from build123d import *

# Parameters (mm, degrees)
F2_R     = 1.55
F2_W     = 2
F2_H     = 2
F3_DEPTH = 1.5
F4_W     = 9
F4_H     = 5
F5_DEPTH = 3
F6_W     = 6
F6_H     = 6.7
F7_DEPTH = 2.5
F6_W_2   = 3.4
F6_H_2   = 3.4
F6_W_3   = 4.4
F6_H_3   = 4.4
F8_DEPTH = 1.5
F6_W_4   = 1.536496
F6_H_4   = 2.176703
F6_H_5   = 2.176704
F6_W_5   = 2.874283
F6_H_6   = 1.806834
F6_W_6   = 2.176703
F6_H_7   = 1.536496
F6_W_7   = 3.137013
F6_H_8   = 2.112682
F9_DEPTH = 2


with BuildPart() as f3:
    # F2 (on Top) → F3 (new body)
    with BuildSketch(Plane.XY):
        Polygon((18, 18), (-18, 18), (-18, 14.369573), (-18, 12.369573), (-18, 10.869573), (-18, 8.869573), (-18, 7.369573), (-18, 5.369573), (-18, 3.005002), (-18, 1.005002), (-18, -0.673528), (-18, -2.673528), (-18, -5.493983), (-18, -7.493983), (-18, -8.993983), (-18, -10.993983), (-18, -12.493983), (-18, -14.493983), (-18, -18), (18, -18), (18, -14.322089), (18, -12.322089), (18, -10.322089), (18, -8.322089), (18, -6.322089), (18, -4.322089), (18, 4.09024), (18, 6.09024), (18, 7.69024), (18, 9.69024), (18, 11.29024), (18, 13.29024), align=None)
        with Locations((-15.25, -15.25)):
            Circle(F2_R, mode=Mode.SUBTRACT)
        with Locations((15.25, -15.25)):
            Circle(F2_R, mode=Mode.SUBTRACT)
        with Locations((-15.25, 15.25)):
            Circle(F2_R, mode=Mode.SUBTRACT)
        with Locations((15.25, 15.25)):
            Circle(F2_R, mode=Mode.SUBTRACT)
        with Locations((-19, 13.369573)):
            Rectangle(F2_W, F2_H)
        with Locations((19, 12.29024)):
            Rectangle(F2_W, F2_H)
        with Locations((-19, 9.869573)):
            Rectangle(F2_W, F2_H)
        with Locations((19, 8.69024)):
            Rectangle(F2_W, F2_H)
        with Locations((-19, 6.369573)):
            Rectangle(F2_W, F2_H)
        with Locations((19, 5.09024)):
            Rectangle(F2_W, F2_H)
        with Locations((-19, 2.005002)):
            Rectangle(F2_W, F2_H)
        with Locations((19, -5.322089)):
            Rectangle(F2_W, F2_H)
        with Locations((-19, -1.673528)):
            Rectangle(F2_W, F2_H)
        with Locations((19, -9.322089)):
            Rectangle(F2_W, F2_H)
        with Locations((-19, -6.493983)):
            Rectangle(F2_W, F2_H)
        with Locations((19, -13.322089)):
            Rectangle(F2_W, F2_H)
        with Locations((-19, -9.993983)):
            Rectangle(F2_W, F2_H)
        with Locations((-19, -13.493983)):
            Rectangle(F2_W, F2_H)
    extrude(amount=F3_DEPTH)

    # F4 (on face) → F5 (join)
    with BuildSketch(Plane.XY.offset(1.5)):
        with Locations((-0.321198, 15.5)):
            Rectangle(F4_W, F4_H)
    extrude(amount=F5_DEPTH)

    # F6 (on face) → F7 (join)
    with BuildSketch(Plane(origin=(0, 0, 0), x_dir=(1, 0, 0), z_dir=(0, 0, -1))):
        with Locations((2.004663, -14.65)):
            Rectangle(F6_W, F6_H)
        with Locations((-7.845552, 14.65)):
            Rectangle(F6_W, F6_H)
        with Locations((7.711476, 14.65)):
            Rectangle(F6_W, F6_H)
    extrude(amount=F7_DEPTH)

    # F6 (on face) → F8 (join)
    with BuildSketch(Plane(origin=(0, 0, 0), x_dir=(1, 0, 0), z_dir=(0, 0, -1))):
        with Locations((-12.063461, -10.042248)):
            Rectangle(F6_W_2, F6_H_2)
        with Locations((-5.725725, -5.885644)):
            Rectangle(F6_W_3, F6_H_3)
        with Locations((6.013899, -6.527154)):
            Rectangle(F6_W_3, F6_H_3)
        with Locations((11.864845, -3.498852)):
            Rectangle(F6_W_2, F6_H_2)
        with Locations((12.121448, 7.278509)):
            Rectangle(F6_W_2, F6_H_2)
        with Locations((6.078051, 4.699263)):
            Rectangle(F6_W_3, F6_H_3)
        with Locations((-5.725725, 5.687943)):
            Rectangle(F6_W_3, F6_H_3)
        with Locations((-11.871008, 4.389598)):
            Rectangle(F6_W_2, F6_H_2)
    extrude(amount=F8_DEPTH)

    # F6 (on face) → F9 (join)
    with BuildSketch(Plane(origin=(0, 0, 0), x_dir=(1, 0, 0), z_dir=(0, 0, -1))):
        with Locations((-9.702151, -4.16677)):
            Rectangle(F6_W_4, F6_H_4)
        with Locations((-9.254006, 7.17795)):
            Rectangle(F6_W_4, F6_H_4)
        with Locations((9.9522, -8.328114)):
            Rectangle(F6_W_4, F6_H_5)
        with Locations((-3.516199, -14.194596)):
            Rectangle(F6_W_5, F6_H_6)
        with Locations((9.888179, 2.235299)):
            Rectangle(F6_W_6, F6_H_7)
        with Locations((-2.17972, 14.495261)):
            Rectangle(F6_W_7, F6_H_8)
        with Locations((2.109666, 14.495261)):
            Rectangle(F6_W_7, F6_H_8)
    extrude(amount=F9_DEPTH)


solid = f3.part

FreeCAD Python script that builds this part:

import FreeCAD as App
import Part
import Sketcher


def add_polygon(sketch, points):
    """Adds a closed chain of lines whose ends are joined by coincident constraints."""
    first, n = sketch.GeometryCount, len(points)
    for a, b in zip(points, points[1:] + points[:1]):
        sketch.addGeometry(Part.LineSegment(App.Vector(*a, 0), App.Vector(*b, 0)), False)
    for i in range(n):
        sketch.addConstraint(Sketcher.Constraint("Coincident", first + i, 2, first + (i + 1) % n, 1))

doc = App.newDocument("Part")
params = doc.addObject("Spreadsheet::Sheet", "Params")
for row, (alias, value) in enumerate([
    ("sketch1_diameter", "3.1 mm"),
    ("sketch1_width", "36 mm"),
    ("sketch1_width2", "2 mm"),
    ("sketch1_height", "1.5 mm"),
    ("sketch1_height2", "1.6 mm"),
    ("pad1_length", "1.5 mm"),
    ("sketch2_width", "9 mm"),
    ("sketch2_height", "5 mm"),
    ("pad2_length", "3 mm"),
    ("sketch3_width", "6 mm"),
    ("sketch3_height", "6.7 mm"),
    ("pad3_length", "2.5 mm"),
    ("sketch4_width", "3.4 mm"),
    ("sketch4_width2", "4.4 mm"),
    ("pad4_length", "1.5 mm"),
    ("pad5_length", "2 mm"),
], start=1):
    params.set(f"A{row}", alias)
    params.set(f"B{row}", "=" + value)
    params.setAlias(f"B{row}", alias)

body = doc.addObject("PartDesign::Body", "Body")

sketch1 = doc.addObject("Sketcher::SketchObject", "Sketch")
body.addObject(sketch1)
sketch1.AttachmentSupport = (doc.XY_Plane, [""])
sketch1.MapMode = "FlatFace"
add_polygon(sketch1, [(18, 18), (-18, 18), (-18, 14.4), (-20, 14.4), (-20, 12.4), (-18, 12.4), (-18, 10.9), (-20, 10.9), (-20, 8.9), (-18, 8.9), (-18, 7.4), (-20, 7.4), (-20, 5.4), (-18, 5.4), (-18, 3), (-20, 3), (-20, 1), (-18, 1), (-18, -0.7), (-20, -0.7), (-20, -2.7), (-18, -2.7), (-18, -5.5), (-20, -5.5), (-20, -7.5), (-18, -7.5), (-18, -9), (-20, -9), (-20, -11), (-18, -11), (-18, -12.5), (-20, -12.5), (-20, -14.5), (-18, -14.5), (-18, -18), (18, -18), (18, -14.3), (20, -14.3), (20, -12.3), (18, -12.3), (18, -10.3), (20, -10.3), (20, -8.3), (18, -8.3), (18, -6.3), (20, -6.3), (20, -4.3), (18, -4.3), (18, 4.1), (20, 4.1), (20, 6.1), (18, 6.1), (18, 7.7), (20, 7.7), (20, 9.7), (18, 9.7), (18, 11.3), (20, 11.3), (20, 13.3), (18, 13.3)])
sketch1.addGeometry(Part.Circle(App.Vector(-15.2, -15.2, 0), App.Vector(0, 0, 1), 1.6), False)
sketch1.addGeometry(Part.Circle(App.Vector(15.2, -15.2, 0), App.Vector(0, 0, 1), 1.6), False)
sketch1.addGeometry(Part.Circle(App.Vector(-15.2, 15.2, 0), App.Vector(0, 0, 1), 1.6), False)
sketch1.addGeometry(Part.Circle(App.Vector(15.2, 15.2, 0), App.Vector(0, 0, 1), 1.6), False)
sketch1.addConstraint([
    Sketcher.Constraint("Horizontal", 0),
    Sketcher.Constraint("Vertical", 1),
    Sketcher.Constraint("Horizontal", 2),
    Sketcher.Constraint("Vertical", 3),
    Sketcher.Constraint("Horizontal", 4),
    Sketcher.Constraint("Vertical", 5),
    Sketcher.Constraint("Horizontal", 6),
    Sketcher.Constraint("Vertical", 7),
    Sketcher.Constraint("Horizontal", 8),
    Sketcher.Constraint("Vertical", 9),
    Sketcher.Constraint("Horizontal", 10),
    Sketcher.Constraint("Vertical", 11),
    Sketcher.Constraint("Horizontal", 12),
    Sketcher.Constraint("Vertical", 13),
    Sketcher.Constraint("Horizontal", 14),
    Sketcher.Constraint("Vertical", 15),
    Sketcher.Constraint("Horizontal", 16),
    Sketcher.Constraint("Vertical", 17),
    Sketcher.Constraint("Horizontal", 18),
    Sketcher.Constraint("Vertical", 19),
    Sketcher.Constraint("Horizontal", 20),
    Sketcher.Constraint("Vertical", 21),
    Sketcher.Constraint("Horizontal", 22),
    Sketcher.Constraint("Vertical", 23),
    Sketcher.Constraint("Horizontal", 24),
    Sketcher.Constraint("Vertical", 25),
    Sketcher.Constraint("Horizontal", 26),
    Sketcher.Constraint("Vertical", 27),
    Sketcher.Constraint("Horizontal", 28),
    Sketcher.Constraint("Vertical", 29),
    Sketcher.Constraint("Horizontal", 30),
    Sketcher.Constraint("Vertical", 31),
    Sketcher.Constraint("Horizontal", 32),
    Sketcher.Constraint("Vertical", 33),
    Sketcher.Constraint("Horizontal", 34),
    Sketcher.Constraint("Vertical", 35),
    Sketcher.Constraint("Horizontal", 36),
    Sketcher.Constraint("Vertical", 37),
    Sketcher.Constraint("Horizontal", 38),
    Sketcher.Constraint("Vertical", 39),
    Sketcher.Constraint("Horizontal", 40),
    Sketcher.Constraint("Vertical", 41),
    Sketcher.Constraint("Horizontal", 42),
    Sketcher.Constraint("Vertical", 43),
    Sketcher.Constraint("Horizontal", 44),
    Sketcher.Constraint("Vertical", 45),
    Sketcher.Constraint("Horizontal", 46),
    Sketcher.Constraint("Vertical", 47),
    Sketcher.Constraint("Horizontal", 48),
    Sketcher.Constraint("Vertical", 49),
    Sketcher.Constraint("Horizontal", 50),
    Sketcher.Constraint("Vertical", 51),
    Sketcher.Constraint("Horizontal", 52),
    Sketcher.Constraint("Vertical", 53),
    Sketcher.Constraint("Horizontal", 54),
    Sketcher.Constraint("Vertical", 55),
    Sketcher.Constraint("Horizontal", 56),
    Sketcher.Constraint("Vertical", 57),
    Sketcher.Constraint("Horizontal", 58),
    Sketcher.Constraint("Vertical", 59),
    Sketcher.Constraint("Equal", 60, 61),
    Sketcher.Constraint("Equal", 61, 62),
    Sketcher.Constraint("Equal", 62, 63),
    Sketcher.Constraint("Symmetric", 61, 3, 62, 3, -1, 1),
    Sketcher.Constraint("Symmetric", 60, 3, 63, 3, -1, 1),
    Sketcher.Constraint("Symmetric", 0, 2, 34, 2, -1, 1),
    Sketcher.Constraint("Symmetric", 60, 3, 61, 3, -2),
    Sketcher.Constraint("Vertical", 1, 2, 4, 2),
    Sketcher.Constraint("Vertical", 3, 2, 6, 2),
    Sketcher.Constraint("Vertical", 5, 2, 8, 2),
    Sketcher.Constraint("Vertical", 7, 2, 10, 2),
    Sketcher.Constraint("Vertical", 9, 2, 12, 2),
    Sketcher.Constraint("Vertical", 11, 2, 14, 2),
    Sketcher.Constraint("Vertical", 13, 2, 16, 2),
    Sketcher.Constraint("Vertical", 15, 2, 18, 2),
    Sketcher.Constraint("Vertical", 17, 2, 20, 2),
    Sketcher.Constraint("Vertical", 19, 2, 22, 2),
    Sketcher.Constraint("Vertical", 21, 2, 24, 2),
    Sketcher.Constraint("Vertical", 23, 2, 26, 2),
    Sketcher.Constraint("Vertical", 25, 2, 28, 2),
    Sketcher.Constraint("Vertical", 27, 2, 30, 2),
    Sketcher.Constraint("Vertical", 29, 2, 32, 2),
    Sketcher.Constraint("Vertical", 35, 2, 38, 2),
    Sketcher.Constraint("Vertical", 37, 2, 40, 2),
    Sketcher.Constraint("Vertical", 39, 2, 42, 2),
    Sketcher.Constraint("Vertical", 41, 2, 44, 2),
    Sketcher.Constraint("Vertical", 43, 2, 46, 2),
    Sketcher.Constraint("Vertical", 45, 2, 48, 2),
    Sketcher.Constraint("Vertical", 47, 2, 50, 2),
    Sketcher.Constraint("Vertical", 49, 2, 52, 2),
    Sketcher.Constraint("Vertical", 51, 2, 54, 2),
    Sketcher.Constraint("Vertical", 53, 2, 56, 2),
    Sketcher.Constraint("Vertical", 55, 2, 58, 2),
    Sketcher.Constraint("Equal", 32, 36),
    Sketcher.Constraint("Equal", 58, 3),
    Sketcher.Constraint("Equal", 3, 7),
    Sketcher.Constraint("Equal", 5, 9),
    Sketcher.Constraint("Equal", 7, 11),
    Sketcher.Constraint("Equal", 11, 15),
    Sketcher.Constraint("Equal", 15, 19),
    Sketcher.Constraint("Equal", 19, 23),
    Sketcher.Constraint("Equal", 9, 25),
    Sketcher.Constraint("Equal", 23, 27),
    Sketcher.Constraint("Equal", 25, 29),
    Sketcher.Constraint("Equal", 27, 31),
    Sketcher.Constraint("Equal", 31, 37),
    Sketcher.Constraint("Equal", 37, 39),
    Sketcher.Constraint("Equal", 39, 41),
    Sketcher.Constraint("Equal", 41, 43),
    Sketcher.Constraint("Equal", 43, 45),
    Sketcher.Constraint("Equal", 45, 49),
    Sketcher.Constraint("Equal", 49, 53),
    Sketcher.Constraint("Equal", 51, 55),
    Sketcher.Constraint("Equal", 53, 57),
    Sketcher.Constraint("Diameter", 60, 3.1),
    Sketcher.Constraint("DistanceX", 0, 2, 0, 1, 36.0),
    Sketcher.Constraint("DistanceX", 2, 2, 2, 1, 2.0),
    Sketcher.Constraint("DistanceY", 5, 2, 5, 1, 1.5),
    Sketcher.Constraint("DistanceY", 51, 1, 51, 2, 1.6),
    Sketcher.Constraint("DistanceY", -1, 1, 0, 2, 18.0),
    Sketcher.Constraint("DistanceX", 60, 3, -1, 1, 15.25),
    Sketcher.Constraint("DistanceY", 60, 3, -1, 1, 15.25),
    Sketcher.Constraint("DistanceY", 13, 2, 13, 1, 2.364571),
    Sketcher.Constraint("DistanceY", 17, 2, 17, 1, 1.67853),
    Sketcher.Constraint("DistanceY", 35, 1, 35, 2, 3.677911),
    Sketcher.Constraint("DistanceY", 47, 1, 47, 2, 8.412329),
    Sketcher.Constraint("DistanceY", 1, 2, 1, 1, 3.630427),
    Sketcher.Constraint("DistanceY", 21, 2, 21, 1, 2.820455),
])
sketch1.setExpression("Constraints[174]", "Params.sketch1_diameter")
sketch1.setExpression("Constraints[175]", "Params.sketch1_width")
sketch1.setExpression("Constraints[176]", "Params.sketch1_width2")
sketch1.setExpression("Constraints[177]", "Params.sketch1_height")
sketch1.setExpression("Constraints[178]", "Params.sketch1_height2")
pad1 = doc.addObject("PartDesign::Pad", "Pad")
body.addObject(pad1)
pad1.Profile = sketch1
pad1.setExpression("Length", "Params.pad1_length")

sketch2 = doc.addObject("Sketcher::SketchObject", "Sketch001")
body.addObject(sketch2)
sketch2.AttachmentSupport = (doc.XY_Plane, [""])
sketch2.MapMode = "FlatFace"
sketch2.AttachmentOffset = App.Placement(App.Vector(0, 0, 1.5), App.Rotation())
add_polygon(sketch2, [(-5, 18), (-5, 13), (4, 13), (4, 18)])
sketch2.addConstraint([
    Sketcher.Constraint("Vertical", 0),
    Sketcher.Constraint("Horizontal", 1),
    Sketcher.Constraint("Vertical", 2),
    Sketcher.Constraint("Horizontal", 3),
    Sketcher.Constraint("DistanceX", 1, 1, 1, 2, 9.0),
    Sketcher.Constraint("DistanceY", 0, 2, 0, 1, 5.0),
    Sketcher.Constraint("DistanceY", -1, 1, 0, 2, 13.0),
    Sketcher.Constraint("DistanceX", 0, 2, -1, 1, 4.821198),
])
sketch2.setExpression("Constraints[8]", "Params.sketch2_width")
sketch2.setExpression("Constraints[9]", "Params.sketch2_height")
pad2 = doc.addObject("PartDesign::Pad", "Pad001")
body.addObject(pad2)
pad2.Profile = sketch2
pad2.setExpression("Length", "Params.pad2_length")

sketch3 = doc.addObject("Sketcher::SketchObject", "Sketch002")
body.addObject(sketch3)
sketch3.AttachmentSupport = (doc.XY_Plane, [""])
sketch3.MapMode = "FlatFace"
add_polygon(sketch3, [(-1, 11), (-1, 18), (5, 18), (5, 11)])
add_polygon(sketch3, [(-11, -18), (-11, -11), (-5, -11), (-5, -18)])
add_polygon(sketch3, [(5, -18), (5, -11), (11, -11), (11, -18)])
sketch3.addConstraint([
    Sketcher.Constraint("Vertical", 0),
    Sketcher.Constraint("Horizontal", 1),
    Sketcher.Constraint("Vertical", 2),
    Sketcher.Constraint("Horizontal", 3),
    Sketcher.Constraint("Vertical", 4),
    Sketcher.Constraint("Horizontal", 5),
    Sketcher.Constraint("Vertical", 6),
    Sketcher.Constraint("Horizontal", 7),
    Sketcher.Constraint("Vertical", 8),
    Sketcher.Constraint("Horizontal", 9),
    Sketcher.Constraint("Vertical", 10),
    Sketcher.Constraint("Horizontal", 11),
    Sketcher.Constraint("Horizontal", 5, 2, 8, 2),
    Sketcher.Constraint("Horizontal", 7, 2, 10, 2),
    Sketcher.Constraint("Equal", 3, 5),
    Sketcher.Constraint("Equal", 7, 9),
    Sketcher.Constraint("Equal", 2, 4),
    Sketcher.Constraint("DistanceX", 1, 1, 1, 2, 6.0),
    Sketcher.Constraint("DistanceY", 0, 1, 0, 2, 6.7),
    Sketcher.Constraint("DistanceY", -1, 1, 0, 2, 18.0),
    Sketcher.Constraint("DistanceY", 6, 2, -1, 1, 18.0),
    Sketcher.Constraint("DistanceX", 5, 2, -1, 1, 4.845552),
    Sketcher.Constraint("DistanceX", 0, 2, -1, 1, 0.995337),
    Sketcher.Constraint("DistanceX", -1, 1, 8, 2, 4.711476),
])
sketch3.setExpression("Constraints[29]", "Params.sketch3_width")
sketch3.setExpression("Constraints[30]", "Params.sketch3_height")
pad3 = doc.addObject("PartDesign::Pad", "Pad002")
body.addObject(pad3)
pad3.Profile = sketch3
pad3.setExpression("Length", "Params.pad3_length")
pad3.Reversed = True

sketch4 = doc.addObject("Sketcher::SketchObject", "Sketch003")
body.addObject(sketch4)
sketch4.AttachmentSupport = (doc.XY_Plane, [""])
sketch4.MapMode = "FlatFace"
add_polygon(sketch4, [(-13.8, 8.3), (-13.8, 11.7), (-10.4, 11.7), (-10.4, 8.3)])
add_polygon(sketch4, [(-7.9, 3.7), (-7.9, 8.1), (-3.5, 8.1), (-3.5, 3.7)])
add_polygon(sketch4, [(3.8, 4.3), (3.8, 8.7), (8.2, 8.7), (8.2, 4.3)])
add_polygon(sketch4, [(10.2, 1.8), (10.2, 5.2), (13.6, 5.2), (13.6, 1.8)])
add_polygon(sketch4, [(10.4, -9), (10.4, -5.6), (13.8, -5.6), (13.8, -9)])
add_polygon(sketch4, [(3.9, -6.9), (3.9, -2.5), (8.3, -2.5), (8.3, -6.9)])
add_polygon(sketch4, [(-7.9, -7.9), (-7.9, -3.5), (-3.5, -3.5), (-3.5, -7.9)])
add_polygon(sketch4, [(-13.6, -6.1), (-13.6, -2.7), (-10.2, -2.7), (-10.2, -6.1)])
sketch4.addConstraint([
    Sketcher.Constraint("Vertical", 0),
    Sketcher.Constraint("Horizontal", 1),
    Sketcher.Constraint("Vertical", 2),
    Sketcher.Constraint("Horizontal", 3),
    Sketcher.Constraint("Vertical", 4),
    Sketcher.Constraint("Horizontal", 5),
    Sketcher.Constraint("Vertical", 6),
    Sketcher.Constraint("Horizontal", 7),
    Sketcher.Constraint("Vertical", 8),
    Sketcher.Constraint("Horizontal", 9),
    Sketcher.Constraint("Vertical", 10),
    Sketcher.Constraint("Horizontal", 11),
    Sketcher.Constraint("Vertical", 12),
    Sketcher.Constraint("Horizontal", 13),
    Sketcher.Constraint("Vertical", 14),
    Sketcher.Constraint("Horizontal", 15),
    Sketcher.Constraint("Vertical", 16),
    Sketcher.Constraint("Horizontal", 17),
    Sketcher.Constraint("Vertical", 18),
    Sketcher.Constraint("Horizontal", 19),
    Sketcher.Constraint("Vertical", 20),
    Sketcher.Constraint("Horizontal", 21),
    Sketcher.Constraint("Vertical", 22),
    Sketcher.Constraint("Horizontal", 23),
    Sketcher.Constraint("Vertical", 24),
    Sketcher.Constraint("Horizontal", 25),
    Sketcher.Constraint("Vertical", 26),
    Sketcher.Constraint("Horizontal", 27),
    Sketcher.Constraint("Vertical", 28),
    Sketcher.Constraint("Horizontal", 29),
    Sketcher.Constraint("Vertical", 30),
    Sketcher.Constraint("Horizontal", 31),
    Sketcher.Constraint("Vertical", 7, 2, 24, 2),
    Sketcher.Constraint("Vertical", 6, 2, 25, 2),
    Sketcher.Constraint("Equal", 7, 9),
    Sketcher.Constraint("Equal", 3, 13),
    Sketcher.Constraint("Equal", 15, 17),
    Sketcher.Constraint("Equal", 11, 21),
    Sketcher.Constraint("Equal", 19, 29),
    Sketcher.Constraint("Equal", 31, 0),
    Sketcher.Constraint("Equal", 27, 4),
    Sketcher.Constraint("Equal", 6, 8),
    Sketcher.Constraint("Equal", 2, 12),
    Sketcher.Constraint("Equal", 14, 16),
    Sketcher.Constraint("Equal", 10, 20),
    Sketcher.Constraint("Equal", 22, 24),
    Sketcher.Constraint("Equal", 18, 28),
    Sketcher.Constraint("DistanceX", 1, 1, 1, 2, 3.4),
    Sketcher.Constraint("DistanceX", 5, 1, 5, 2, 4.4),
    Sketcher.Constraint("DistanceX", -1, 1, 8, 2, 3.813899),
    Sketcher.Constraint("DistanceY", 28, 2, -1, 1, 2.689598),
    Sketcher.Constraint("DistanceY", 14, 2, 10, 2, 2.528302),
    Sketcher.Constraint("DistanceX", 0, 2, -1, 1, 13.763461),
    Sketcher.Constraint("DistanceY", -1, 1, 12, 2, 5.198852),
    Sketcher.Constraint("DistanceY", 16, 2, -1, 1, 5.578509),
    Sketcher.Constraint("DistanceX", -1, 1, 20, 2, 3.878051),
    Sketcher.Constraint("DistanceX", 28, 2, -1, 1, 13.571008),
    Sketcher.Constraint("DistanceY", 5, 2, 8, 2, 0.64151),
    Sketcher.Constraint("DistanceX", 6, 2, 12, 2, 13.69057),
    Sketcher.Constraint("DistanceX", 10, 2, 16, 2, 2.207549),
    Sketcher.Constraint("DistanceY", 24, 2, 20, 2, 0.98868),
    Sketcher.Constraint("DistanceY", 24, 2, 2, 2, 11.830191),
    Sketcher.Constraint("DistanceY", -1, 1, 0, 2, 11.742248),
    Sketcher.Constraint("DistanceX", 4, 2, -1, 1, 7.925725),
])
sketch4.setExpression("Constraints[79]", "Params.sketch4_width")
sketch4.setExpression("Constraints[80]", "Params.sketch4_width2")
pad4 = doc.addObject("PartDesign::Pad", "Pad003")
body.addObject(pad4)
pad4.Profile = sketch4
pad4.setExpression("Length", "Params.pad4_length")
pad4.Reversed = True

sketch5 = doc.addObject("Sketcher::SketchObject", "Sketch004")
body.addObject(sketch5)
sketch5.AttachmentSupport = (doc.XY_Plane, [""])
sketch5.MapMode = "FlatFace"
add_polygon(sketch5, [(-10.5, 3.1), (-10.5, 5.3), (-8.9, 5.3), (-8.9, 3.1)])
add_polygon(sketch5, [(-10, -8.3), (-10, -6.1), (-8.5, -6.1), (-8.5, -8.3)])
add_polygon(sketch5, [(9.2, 7.2), (9.2, 9.4), (10.7, 9.4), (10.7, 7.2)])
add_polygon(sketch5, [(-5, 13.3), (-5, 15.1), (-2.1, 15.1), (-2.1, 13.3)])
add_polygon(sketch5, [(8.8, -3), (8.8, -1.5), (11, -1.5), (11, -3)])
add_polygon(sketch5, [(-3.7, -15.6), (-3.7, -13.4), (-0.6, -13.4), (-0.6, -15.6)])
add_polygon(sketch5, [(0.5, -15.6), (0.5, -13.4), (3.7, -13.4), (3.7, -15.6)])
sketch5.addConstraint([
    Sketcher.Constraint("Vertical", 0),
    Sketcher.Constraint("Horizontal", 1),
    Sketcher.Constraint("Vertical", 2),
    Sketcher.Constraint("Horizontal", 3),
    Sketcher.Constraint("Vertical", 4),
    Sketcher.Constraint("Horizontal", 5),
    Sketcher.Constraint("Vertical", 6),
    Sketcher.Constraint("Horizontal", 7),
    Sketcher.Constraint("Vertical", 8),
    Sketcher.Constraint("Horizontal", 9),
    Sketcher.Constraint("Vertical", 10),
    Sketcher.Constraint("Horizontal", 11),
    Sketcher.Constraint("Vertical", 12),
    Sketcher.Constraint("Horizontal", 13),
    Sketcher.Constraint("Vertical", 14),
    Sketcher.Constraint("Horizontal", 15),
    Sketcher.Constraint("Vertical", 16),
    Sketcher.Constraint("Horizontal", 17),
    Sketcher.Constraint("Vertical", 18),
    Sketcher.Constraint("Horizontal", 19),
    Sketcher.Constraint("Vertical", 20),
    Sketcher.Constraint("Horizontal", 21),
    Sketcher.Constraint("Vertical", 22),
    Sketcher.Constraint("Horizontal", 23),
    Sketcher.Constraint("Vertical", 24),
    Sketcher.Constraint("Horizontal", 25),
    Sketcher.Constraint("Vertical", 26),
    Sketcher.Constraint("Horizontal", 27),
    Sketcher.Constraint("Horizontal", 21, 2, 24, 2),
    Sketcher.Constraint("Horizontal", 23, 2, 26, 2),
    Sketcher.Constraint("Equal", 3, 5),
    Sketcher.Constraint("Equal", 7, 9),
    Sketcher.Constraint("Equal", 23, 25),
    Sketcher.Constraint("Equal", 19, 0),
    Sketcher.Constraint("Equal", 2, 4),
    Sketcher.Constraint("Equal", 6, 8),
    Sketcher.Constraint("Equal", 11, 16),
    Sketcher.Constraint("DistanceX", 0, 2, -1, 1, 10.470399),
    Sketcher.Constraint("DistanceY", 4, 2, -1, 1, 6.089599),
    Sketcher.Constraint("DistanceY", 6, 2, -1, 1, 8.266302),
    Sketcher.Constraint("DistanceY", 22, 2, 6, 2, 7.2853),
    Sketcher.Constraint("DistanceX", 20, 2, 25, 2, 7.426399),
    Sketcher.Constraint("DistanceX", 1, 1, 1, 2, 1.536496),
    Sketcher.Constraint("DistanceX", 13, 1, 13, 2, 2.874283),
    Sketcher.Constraint("DistanceX", 21, 1, 21, 2, 3.137013),
    Sketcher.Constraint("DistanceY", 12, 1, 12, 2, 1.806834),
    Sketcher.Constraint("DistanceY", 20, 1, 20, 2, 2.112682),
    Sketcher.Constraint("DistanceY", -1, 1, 0, 2, 5.255121),
    Sketcher.Constraint("DistanceY", -1, 1, 10, 2, 7.239762),
    Sketcher.Constraint("DistanceX", 12, 2, -1, 1, 4.953341),
    Sketcher.Constraint("DistanceY", -1, 1, 14, 2, 13.291179),
    Sketcher.Constraint("DistanceY", 16, 2, -1, 1, 1.467051),
    Sketcher.Constraint("DistanceX", -1, 1, 17, 2, 10.976531),
    Sketcher.Constraint("DistanceX", -1, 1, 24, 2, 0.54116),
    Sketcher.Constraint("DistanceX", 4, 2, 2, 2, 1.088351),
    Sketcher.Constraint("DistanceX", 0, 2, 8, 2, 19.654351),
])
pad5 = doc.addObject("PartDesign::Pad", "Pad004")
body.addObject(pad5)
pad5.Profile = sketch5
pad5.setExpression("Length", "Params.pad5_length")
pad5.Reversed = True

doc.recompute()
